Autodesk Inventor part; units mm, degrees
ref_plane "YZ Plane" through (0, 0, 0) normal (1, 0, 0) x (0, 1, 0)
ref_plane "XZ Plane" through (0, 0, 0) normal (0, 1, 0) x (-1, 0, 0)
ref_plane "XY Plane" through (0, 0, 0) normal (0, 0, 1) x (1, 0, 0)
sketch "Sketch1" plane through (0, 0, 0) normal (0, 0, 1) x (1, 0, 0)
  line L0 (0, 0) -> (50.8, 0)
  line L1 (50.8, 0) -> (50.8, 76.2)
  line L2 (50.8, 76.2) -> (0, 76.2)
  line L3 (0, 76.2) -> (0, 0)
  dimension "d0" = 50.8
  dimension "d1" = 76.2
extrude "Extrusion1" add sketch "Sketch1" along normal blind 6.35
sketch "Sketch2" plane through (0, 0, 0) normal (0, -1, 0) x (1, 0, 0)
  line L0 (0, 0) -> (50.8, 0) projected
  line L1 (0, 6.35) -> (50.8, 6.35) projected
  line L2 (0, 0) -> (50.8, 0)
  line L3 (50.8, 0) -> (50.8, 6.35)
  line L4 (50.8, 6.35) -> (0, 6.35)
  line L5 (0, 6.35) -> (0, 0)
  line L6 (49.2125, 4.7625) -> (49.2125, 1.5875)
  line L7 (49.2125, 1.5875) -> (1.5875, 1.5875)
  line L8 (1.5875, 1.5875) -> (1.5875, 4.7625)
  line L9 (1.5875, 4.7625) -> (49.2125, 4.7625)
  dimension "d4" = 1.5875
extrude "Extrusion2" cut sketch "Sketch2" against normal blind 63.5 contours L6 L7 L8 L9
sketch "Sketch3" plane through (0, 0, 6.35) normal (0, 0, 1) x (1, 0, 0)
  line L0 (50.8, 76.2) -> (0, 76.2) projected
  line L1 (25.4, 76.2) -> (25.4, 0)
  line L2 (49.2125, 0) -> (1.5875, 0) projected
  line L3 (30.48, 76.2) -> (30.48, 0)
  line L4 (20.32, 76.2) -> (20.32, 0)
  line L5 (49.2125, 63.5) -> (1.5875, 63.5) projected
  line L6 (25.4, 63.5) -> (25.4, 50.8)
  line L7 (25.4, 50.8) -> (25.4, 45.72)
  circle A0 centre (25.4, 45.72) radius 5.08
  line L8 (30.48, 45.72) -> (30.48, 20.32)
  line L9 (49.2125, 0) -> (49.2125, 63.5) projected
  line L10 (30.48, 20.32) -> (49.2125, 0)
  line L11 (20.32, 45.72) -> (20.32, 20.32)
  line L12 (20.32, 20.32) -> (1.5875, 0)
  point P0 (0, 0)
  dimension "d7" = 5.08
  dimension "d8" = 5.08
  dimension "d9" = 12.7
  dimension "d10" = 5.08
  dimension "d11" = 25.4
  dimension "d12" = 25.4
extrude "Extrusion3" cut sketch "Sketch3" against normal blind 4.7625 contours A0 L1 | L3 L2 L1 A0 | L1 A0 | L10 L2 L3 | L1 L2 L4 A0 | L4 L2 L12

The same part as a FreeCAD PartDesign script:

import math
import FreeCAD as App
import Part
import Sketcher

V = App.Vector
Q = App.Units.Quantity

doc = App.newDocument("Part")
body = doc.addObject("PartDesign::Body", "Body")

# Sketch on XY plane
sketch1 = body.newObject("Sketcher::SketchObject", "Sketch")
sketch1.AttachmentSupport = (doc.getObject("XY_Plane"), [""])
sketch1.MapMode = "FlatFace"
sketch1.addGeometry([
    Part.LineSegment(V(0, 76.2, 0), V(0, 0, 0)),
    Part.LineSegment(V(0, 0, 0), V(50.8, 0, 0)),
    Part.LineSegment(V(50.8, 0, 0), V(50.8, 76.2, 0)),
    Part.LineSegment(V(50.8, 76.2, 0), V(0, 76.2, 0)),
], False)
sketch1.addConstraint([
    Sketcher.Constraint("Coincident", 0, 2, 1, 1),
    Sketcher.Constraint("Coincident", 1, 2, 2, 1),
    Sketcher.Constraint("Coincident", 2, 2, 3, 1),
    Sketcher.Constraint("Coincident", 3, 2, 0, 1),
    Sketcher.Constraint("Vertical", 0),
    Sketcher.Constraint("Horizontal", 1),
    Sketcher.Constraint("Vertical", 2),
    Sketcher.Constraint("Horizontal", 3),
    Sketcher.Constraint("Coincident", 0, 2, -1, 1),
    Sketcher.Constraint("DistanceX", 1, 1, 1, 2, Q("2 in")),
    Sketcher.Constraint("DistanceY", 0, 2, 0, 1, Q("3 in")),
])
pad1 = body.newObject("PartDesign::Pad", "Pad")
pad1.Profile = sketch1
pad1.Length = Q("0.25 in")

# Sketch on XZ plane
sketch2 = body.newObject("Sketcher::SketchObject", "Sketch001")
sketch2.AttachmentSupport = (doc.getObject("XZ_Plane"), [""])
sketch2.MapMode = "FlatFace"
sketch2.addGeometry([
    Part.LineSegment(V(49.2125, 1.5875, 0), V(49.2125, 4.7625, 0)),
    Part.LineSegment(V(49.2125, 4.7625, 0), V(1.5875, 4.7625, 0)),
    Part.LineSegment(V(1.5875, 4.7625, 0), V(1.5875, 1.5875, 0)),
    Part.LineSegment(V(1.5875, 1.5875, 0), V(49.2125, 1.5875, 0)),
], False)
sketch2.addConstraint([
    Sketcher.Constraint("Coincident", 0, 2, 1, 1),
    Sketcher.Constraint("Coincident", 1, 2, 2, 1),
    Sketcher.Constraint("Coincident", 2, 2, 3, 1),
    Sketcher.Constraint("Coincident", 3, 2, 0, 1),
    Sketcher.Constraint("Vertical", 0),
    Sketcher.Constraint("Horizontal", 1),
    Sketcher.Constraint("Vertical", 2),
    Sketcher.Constraint("Horizontal", 3),
    Sketcher.Constraint("DistanceX", -1, 1, 1, 2, Q("0.0625 in")),
    Sketcher.Constraint("DistanceY", -1, 1, 2, 2, Q("0.0625 in")),
    Sketcher.Constraint("DistanceX", 1, 2, 1, 1, Q("1.875 in")),
    Sketcher.Constraint("DistanceY", 0, 1, 0, 2, Q("0.125 in")),
])
pocket1 = body.newObject("PartDesign::Pocket", "Pocket")
pocket1.Profile = sketch2
pocket1.Length = Q("2.5 in")

# Sketch on XY plane
sketch3 = body.newObject("Sketcher::SketchObject", "Sketch002")
sketch3.AttachmentSupport = (doc.getObject("XY_Plane"), [""])
sketch3.MapMode = "FlatFace"
sketch3.AttachmentOffset = App.Placement(V(0, 0, 0.25 * 25.4), App.Rotation())
sketch3.addGeometry([
    Part.ArcOfCircle(Part.Circle(V(25.4, 45.72, 0), V(0, 0, 1), 5.08), math.radians(0), math.radians(180)),  # 0
    Part.LineSegment(V(20.32, 45.72, 0), V(20.32, 20.32, 0)),  # 1
    Part.LineSegment(V(20.32, 20.32, 0), V(1.5875, 0, 0)),  # 2
    Part.LineSegment(V(1.5875, 0, 0), V(49.2125, 0, 0)),  # 3
    Part.LineSegment(V(49.2125, 0, 0), V(30.48, 20.32, 0)),  # 4
    Part.LineSegment(V(30.48, 20.32, 0), V(30.48, 45.72, 0)),  # 5
], False)
sketch3.addConstraint([
    Sketcher.Constraint("Tangent", 0, 2, 1, 1),
    Sketcher.Constraint("Coincident", 1, 2, 2, 1),
    Sketcher.Constraint("Coincident", 2, 2, 3, 1),
    Sketcher.Constraint("Coincident", 3, 2, 4, 1),
    Sketcher.Constraint("Coincident", 4, 2, 5, 1),
    Sketcher.Constraint("Tangent", 5, 2, 0, 1),
    Sketcher.Constraint("Vertical", 1),
    Sketcher.Constraint("Horizontal", 3),
    Sketcher.Constraint("Vertical", 5),
    Sketcher.Constraint("PointOnObject", 2, 2, -1),
    Sketcher.Constraint("Horizontal", 1, 2, 4, 2),
    Sketcher.Constraint("Equal", 2, 4),
    Sketcher.Constraint("Radius", 0, Q("0.2 in")),
    Sketcher.Constraint("DistanceY", 1, 2, 1, 1, Q("1 in")),
    Sketcher.Constraint("DistanceX", -1, 1, 0, 3, Q("1 in")),
    Sketcher.Constraint("DistanceY", -1, 1, 0, 3, Q("1.8 in")),
    Sketcher.Constraint("DistanceX", 3, 1, 3, 2, Q("1.875 in")),
])
pocket2 = body.newObject("PartDesign::Pocket", "Pocket001")
pocket2.Profile = sketch3
pocket2.Length = Q("0.1875 in")

doc.recompute()
